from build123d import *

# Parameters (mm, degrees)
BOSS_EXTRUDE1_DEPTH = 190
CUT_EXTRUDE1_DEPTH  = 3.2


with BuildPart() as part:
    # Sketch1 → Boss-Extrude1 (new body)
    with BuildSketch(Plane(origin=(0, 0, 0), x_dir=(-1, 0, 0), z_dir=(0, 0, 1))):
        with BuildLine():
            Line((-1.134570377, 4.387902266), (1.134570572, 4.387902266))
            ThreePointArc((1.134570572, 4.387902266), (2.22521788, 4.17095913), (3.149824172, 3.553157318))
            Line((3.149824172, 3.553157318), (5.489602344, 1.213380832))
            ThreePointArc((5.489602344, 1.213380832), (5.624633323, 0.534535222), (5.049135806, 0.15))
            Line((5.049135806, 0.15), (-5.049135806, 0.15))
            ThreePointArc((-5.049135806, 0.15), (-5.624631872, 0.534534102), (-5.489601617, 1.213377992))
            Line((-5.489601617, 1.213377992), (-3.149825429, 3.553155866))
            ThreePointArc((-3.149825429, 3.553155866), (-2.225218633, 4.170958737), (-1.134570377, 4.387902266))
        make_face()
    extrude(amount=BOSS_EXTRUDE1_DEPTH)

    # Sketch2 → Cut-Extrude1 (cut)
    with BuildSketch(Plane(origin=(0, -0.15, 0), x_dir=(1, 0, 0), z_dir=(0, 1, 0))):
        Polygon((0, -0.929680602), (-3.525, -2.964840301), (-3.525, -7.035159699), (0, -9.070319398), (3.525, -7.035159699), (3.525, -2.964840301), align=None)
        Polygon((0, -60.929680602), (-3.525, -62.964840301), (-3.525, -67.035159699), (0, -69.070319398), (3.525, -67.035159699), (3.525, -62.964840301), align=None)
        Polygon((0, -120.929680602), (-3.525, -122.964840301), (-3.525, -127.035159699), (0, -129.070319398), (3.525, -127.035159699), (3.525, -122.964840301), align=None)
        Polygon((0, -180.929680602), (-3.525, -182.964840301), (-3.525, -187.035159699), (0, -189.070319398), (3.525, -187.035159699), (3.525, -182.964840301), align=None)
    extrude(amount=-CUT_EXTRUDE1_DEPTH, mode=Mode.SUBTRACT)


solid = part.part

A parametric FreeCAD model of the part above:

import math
import FreeCAD as App
import Part
import Sketcher
from FreeCAD import Vector
Q = App.Units.Quantity


def add_polygon(sketch, points):
    """Adds a closed chain of lines whose ends are joined by coincident constraints."""
    first, n = sketch.GeometryCount, len(points)
    for a, b in zip(points, points[1:] + points[:1]):
        sketch.addGeometry(Part.LineSegment(App.Vector(*a, 0), App.Vector(*b, 0)), False)
    for i in range(n):
        sketch.addConstraint(Sketcher.Constraint("Coincident", first + i, 2, first + (i + 1) % n, 1))

doc = App.newDocument("Part")
body = doc.addObject("PartDesign::Body", "Body")

# Sketch on XY plane
sketch1 = doc.addObject("Sketcher::SketchObject", "Sketch")
body.addObject(sketch1)
sketch1.AttachmentSupport = (doc.XY_Plane, [""])
sketch1.MapMode = "FlatFace"
sketch1.addGeometry([
    Part.LineSegment(Vector(-1.1, -4.4, 0), Vector(1.1, -4.4, 0)),  # 0
    Part.ArcOfCircle(Part.Circle(Vector(1.1, -1.5, 0), Vector(0, 0, 1), 2.9), math.radians(-90), math.radians(-45)),  # 1
    Part.LineSegment(Vector(3.1, -3.6, 0), Vector(5.5, -1.2, 0)),  # 2
    Part.ArcOfCircle(Part.Circle(Vector(5, -0.8, 0), Vector(0, 0, 1), 0.6), math.radians(-45), math.radians(90)),  # 3
    Part.LineSegment(Vector(5, -0.1, 0), Vector(-5, -0.1, 0)),  # 4
    Part.ArcOfCircle(Part.Circle(Vector(-5, -0.8, 0), Vector(0, 0, 1), 0.6), math.radians(90), math.radians(225)),  # 5
    Part.LineSegment(Vector(-5.5, -1.2, 0), Vector(-3.1, -3.6, 0)),  # 6
    Part.ArcOfCircle(Part.Circle(Vector(-1.1, -1.5, 0), Vector(0, 0, 1), 2.8), math.radians(-135), math.radians(-90)),  # 7
], False)
sketch1.addConstraint([
    Sketcher.Constraint("Tangent", 0, 2, 1, 1),
    Sketcher.Constraint("Tangent", 1, 2, 2, 1),
    Sketcher.Constraint("Tangent", 2, 2, 3, 1),
    Sketcher.Constraint("Tangent", 3, 2, 4, 1),
    Sketcher.Constraint("Tangent", 4, 2, 5, 1),
    Sketcher.Constraint("Tangent", 5, 2, 6, 1),
    Sketcher.Constraint("Tangent", 6, 2, 7, 1),
    Sketcher.Constraint("Tangent", 7, 2, 0, 1),
    Sketcher.Constraint("Horizontal", 0),
    Sketcher.Constraint("Horizontal", 4),
    Sketcher.Constraint("Equal", 3, 5),
    Sketcher.Constraint("Equal", 1, 7),
    Sketcher.Constraint("Symmetric", 2, 2, 5, 2, -2),
    Sketcher.Constraint("Perpendicular", 2, 6),
    Sketcher.Constraint("Radius", 1, Q("2.85 mm")),
    Sketcher.Constraint("DistanceY", 3, 2, -1, 1, Q("0.15 mm")),
    Sketcher.Constraint("Radius", 3, Q("0.622912 mm")),
    Sketcher.Constraint("DistanceX", 0, 1, 0, 2, Q("2.269141 mm")),
    Sketcher.Constraint("DistanceX", 4, 2, 4, 1, Q("10.098272 mm")),
])
pad1 = doc.addObject("PartDesign::Pad", "Pad")
body.addObject(pad1)
pad1.Profile = sketch1
pad1.Length = 190

# Sketch on XZ plane
sketch2 = doc.addObject("Sketcher::SketchObject", "Sketch001")
body.addObject(sketch2)
sketch2.AttachmentSupport = (doc.XZ_Plane, [""])
sketch2.MapMode = "FlatFace"
sketch2.AttachmentOffset = App.Placement(Vector(0, 0, 0.15), App.Rotation())
add_polygon(sketch2, [(0, 0.9), (-3.5, 3), (-3.5, 7), (0, 9.1), (3.5, 7), (3.5, 3)])  # lines 0-5
add_polygon(sketch2, [(0, 60.9), (-3.5, 63), (-3.5, 67), (0, 69.1), (3.5, 67), (3.5, 63)])  # lines 6-11
add_polygon(sketch2, [(0, 120.9), (-3.5, 123), (-3.5, 127), (0, 129.1), (3.5, 127), (3.5, 123)])  # lines 12-17
add_polygon(sketch2, [(0, 180.9), (-3.5, 183), (-3.5, 187), (0, 189.1), (3.5, 187), (3.5, 183)])  # lines 18-23
sketch2.addConstraint([
    Sketcher.Constraint("Vertical", 1),
    Sketcher.Constraint("Vertical", 4),
    Sketcher.Constraint("Vertical", 7),
    Sketcher.Constraint("Vertical", 10),
    Sketcher.Constraint("Vertical", 13),
    Sketcher.Constraint("Vertical", 16),
    Sketcher.Constraint("Vertical", 19),
    Sketcher.Constraint("Vertical", 22),
    Sketcher.Constraint("Symmetric", 1, 2, 3, 2, -2),
    Sketcher.Constraint("Symmetric", 7, 2, 9, 2, -2),
    Sketcher.Constraint("Symmetric", 13, 2, 15, 2, -2),
    Sketcher.Constraint("Symmetric", 19, 2, 21, 2, -2),
    Sketcher.Constraint("PointOnObject", 2, 2, -2),
    Sketcher.Constraint("PointOnObject", 5, 2, -2),
    Sketcher.Constraint("PointOnObject", 8, 2, -2),
    Sketcher.Constraint("PointOnObject", 11, 2, -2),
    Sketcher.Constraint("PointOnObject", 14, 2, -2),
    Sketcher.Constraint("PointOnObject", 17, 2, -2),
    Sketcher.Constraint("PointOnObject", 20, 2, -2),
    Sketcher.Constraint("PointOnObject", 23, 2, -2),
    Sketcher.Constraint("Parallel", 0, 3),
    Sketcher.Constraint("Parallel", 2, 5),
    Sketcher.Constraint("Parallel", 3, 6),
    Sketcher.Constraint("Parallel", 5, 8),
    Sketcher.Constraint("Parallel", 8, 11),
    Sketcher.Constraint("Parallel", 9, 12),
    Sketcher.Constraint("Parallel", 11, 14),
    Sketcher.Constraint("Parallel", 14, 17),
    Sketcher.Constraint("Parallel", 15, 18),
    Sketcher.Constraint("Parallel", 17, 20),
    Sketcher.Constraint("Parallel", 20, 23),
    Sketcher.Constraint("Vertical", 1, 2, 6, 2),
    Sketcher.Constraint("Vertical", 7, 2, 12, 2),
    Sketcher.Constraint("Vertical", 13, 2, 18, 2),
    Sketcher.Constraint("Equal", 4, 7),
    Sketcher.Constraint("Equal", 10, 13),
    Sketcher.Constraint("Equal", 16, 19),
    Sketcher.Constraint("Angle", 0, Q("150 deg")),
    Sketcher.Constraint("DistanceY", 0, 2, 6, 2, Q("60 mm")),
    Sketcher.Constraint("DistanceY", 6, 2, 12, 2, Q("60 mm")),
    Sketcher.Constraint("DistanceY", 12, 2, 18, 2, Q("60 mm")),
    Sketcher.Constraint("DistanceX", 1, 2, 3, 2, Q("7.05 mm")),
    Sketcher.Constraint("DistanceY", 1, 1, 1, 2, Q("4.070319 mm")),
    Sketcher.Constraint("DistanceY", -1, 1, 0, 2, Q("2.96484 mm")),
])
pocket1 = doc.addObject("PartDesign::Pocket", "Pocket")
body.addObject(pocket1)
pocket1.Profile = sketch2
pocket1.Length = 3.2
pocket1.Reversed = True

doc.recompute()
